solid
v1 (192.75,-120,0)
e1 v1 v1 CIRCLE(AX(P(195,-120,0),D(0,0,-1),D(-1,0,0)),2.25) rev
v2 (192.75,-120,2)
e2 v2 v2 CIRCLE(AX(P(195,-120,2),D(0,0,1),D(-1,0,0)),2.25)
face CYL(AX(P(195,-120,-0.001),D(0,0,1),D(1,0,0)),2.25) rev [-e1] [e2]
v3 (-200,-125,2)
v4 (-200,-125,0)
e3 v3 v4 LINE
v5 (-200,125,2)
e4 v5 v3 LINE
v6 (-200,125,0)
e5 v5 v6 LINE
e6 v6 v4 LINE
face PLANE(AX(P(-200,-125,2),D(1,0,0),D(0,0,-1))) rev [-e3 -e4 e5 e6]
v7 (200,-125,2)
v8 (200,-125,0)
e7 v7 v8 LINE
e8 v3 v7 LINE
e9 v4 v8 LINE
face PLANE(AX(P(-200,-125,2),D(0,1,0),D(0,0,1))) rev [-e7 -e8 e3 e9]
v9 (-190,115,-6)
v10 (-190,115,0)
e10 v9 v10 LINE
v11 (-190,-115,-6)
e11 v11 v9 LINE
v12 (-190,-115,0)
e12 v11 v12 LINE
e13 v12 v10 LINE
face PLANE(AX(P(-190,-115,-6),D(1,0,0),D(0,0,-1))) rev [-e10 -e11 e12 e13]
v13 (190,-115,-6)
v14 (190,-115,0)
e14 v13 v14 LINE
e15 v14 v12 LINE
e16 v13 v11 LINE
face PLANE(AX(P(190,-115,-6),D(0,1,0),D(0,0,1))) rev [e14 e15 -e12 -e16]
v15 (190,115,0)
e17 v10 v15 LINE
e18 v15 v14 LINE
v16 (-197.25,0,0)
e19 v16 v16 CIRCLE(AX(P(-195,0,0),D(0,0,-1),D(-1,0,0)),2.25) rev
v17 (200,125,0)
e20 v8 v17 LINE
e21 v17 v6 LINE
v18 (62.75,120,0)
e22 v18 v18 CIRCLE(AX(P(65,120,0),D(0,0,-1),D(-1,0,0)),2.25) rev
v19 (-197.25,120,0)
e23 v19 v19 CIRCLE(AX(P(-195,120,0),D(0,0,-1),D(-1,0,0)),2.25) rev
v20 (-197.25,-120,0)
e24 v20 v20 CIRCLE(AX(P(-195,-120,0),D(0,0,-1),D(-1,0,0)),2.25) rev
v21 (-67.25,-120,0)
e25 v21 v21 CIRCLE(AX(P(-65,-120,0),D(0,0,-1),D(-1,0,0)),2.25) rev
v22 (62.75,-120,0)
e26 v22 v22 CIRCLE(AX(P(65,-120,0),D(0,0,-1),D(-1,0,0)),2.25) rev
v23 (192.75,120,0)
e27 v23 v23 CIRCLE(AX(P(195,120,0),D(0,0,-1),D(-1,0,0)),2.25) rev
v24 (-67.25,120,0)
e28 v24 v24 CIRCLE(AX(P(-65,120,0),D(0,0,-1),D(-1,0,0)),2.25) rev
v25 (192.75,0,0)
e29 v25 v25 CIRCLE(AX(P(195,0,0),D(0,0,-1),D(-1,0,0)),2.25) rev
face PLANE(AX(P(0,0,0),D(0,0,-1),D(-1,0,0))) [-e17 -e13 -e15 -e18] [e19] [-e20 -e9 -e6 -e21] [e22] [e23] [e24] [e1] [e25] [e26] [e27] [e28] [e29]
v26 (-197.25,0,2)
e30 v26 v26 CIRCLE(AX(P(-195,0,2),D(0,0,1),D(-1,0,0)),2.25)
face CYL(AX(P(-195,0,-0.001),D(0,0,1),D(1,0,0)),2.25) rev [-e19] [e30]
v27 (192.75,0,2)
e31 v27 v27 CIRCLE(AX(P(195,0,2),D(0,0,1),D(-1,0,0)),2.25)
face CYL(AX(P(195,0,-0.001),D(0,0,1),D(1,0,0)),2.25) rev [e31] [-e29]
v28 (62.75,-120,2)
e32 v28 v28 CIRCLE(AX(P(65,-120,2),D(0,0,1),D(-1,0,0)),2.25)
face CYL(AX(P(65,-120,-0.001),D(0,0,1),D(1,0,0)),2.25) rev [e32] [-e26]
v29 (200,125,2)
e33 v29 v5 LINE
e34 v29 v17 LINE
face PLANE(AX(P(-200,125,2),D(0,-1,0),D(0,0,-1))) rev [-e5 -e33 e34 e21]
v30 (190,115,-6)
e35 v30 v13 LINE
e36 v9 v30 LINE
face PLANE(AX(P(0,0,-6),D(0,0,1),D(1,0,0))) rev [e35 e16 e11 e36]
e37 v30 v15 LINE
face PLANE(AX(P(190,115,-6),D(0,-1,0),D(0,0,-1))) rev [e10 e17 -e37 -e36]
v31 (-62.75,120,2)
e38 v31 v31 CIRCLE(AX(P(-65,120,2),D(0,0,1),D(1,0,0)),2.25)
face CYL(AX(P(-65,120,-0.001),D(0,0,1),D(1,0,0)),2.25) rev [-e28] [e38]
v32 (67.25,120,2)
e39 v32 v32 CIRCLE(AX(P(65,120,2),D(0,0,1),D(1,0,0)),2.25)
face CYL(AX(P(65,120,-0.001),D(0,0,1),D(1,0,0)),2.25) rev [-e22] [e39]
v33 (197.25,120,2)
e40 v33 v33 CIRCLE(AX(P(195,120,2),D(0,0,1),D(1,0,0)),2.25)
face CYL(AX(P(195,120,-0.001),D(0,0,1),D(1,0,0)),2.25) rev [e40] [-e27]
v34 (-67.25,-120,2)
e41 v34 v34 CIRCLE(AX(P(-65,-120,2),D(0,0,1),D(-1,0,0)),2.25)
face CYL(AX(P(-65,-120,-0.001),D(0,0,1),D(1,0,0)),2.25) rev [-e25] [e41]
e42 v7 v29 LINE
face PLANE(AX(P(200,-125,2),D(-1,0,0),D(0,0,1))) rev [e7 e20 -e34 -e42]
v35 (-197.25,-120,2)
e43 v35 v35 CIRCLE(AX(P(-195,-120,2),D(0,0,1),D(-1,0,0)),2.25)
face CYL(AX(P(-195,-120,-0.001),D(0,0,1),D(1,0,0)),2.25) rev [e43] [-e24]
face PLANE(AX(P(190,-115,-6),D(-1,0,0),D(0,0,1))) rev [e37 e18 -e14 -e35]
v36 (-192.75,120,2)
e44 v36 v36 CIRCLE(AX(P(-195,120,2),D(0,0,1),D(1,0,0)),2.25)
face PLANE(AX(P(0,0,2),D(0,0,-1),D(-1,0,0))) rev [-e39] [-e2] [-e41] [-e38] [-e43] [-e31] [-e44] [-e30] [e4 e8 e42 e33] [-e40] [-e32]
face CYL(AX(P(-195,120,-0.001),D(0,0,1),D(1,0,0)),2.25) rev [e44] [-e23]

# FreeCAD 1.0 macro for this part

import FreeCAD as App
import Part
import Sketcher

doc = App.newDocument("Part")
body = doc.addObject("PartDesign::Body", "Body")

sketch1 = body.newObject("Sketcher::SketchObject", "Sketch")
sketch1.AttachmentSupport = (doc.getObject("XY_Plane"), [""])
sketch1.MapMode = "FlatFace"
sketch1.addGeometry([
    Part.LineSegment(App.Vector(-200, 125, 0), App.Vector(-200, -125, 0)),
    Part.LineSegment(App.Vector(-200, -125, 0), App.Vector(200, -125, 0)),
    Part.LineSegment(App.Vector(200, -125, 0), App.Vector(200, 125, 0)),
    Part.LineSegment(App.Vector(200, 125, 0), App.Vector(-200, 125, 0)),
], False)
sketch1.addConstraint([
    Sketcher.Constraint("Coincident", 0, 2, 1, 1),
    Sketcher.Constraint("Coincident", 1, 2, 2, 1),
    Sketcher.Constraint("Coincident", 2, 2, 3, 1),
    Sketcher.Constraint("Coincident", 3, 2, 0, 1),
    Sketcher.Constraint("Vertical", 0),
    Sketcher.Constraint("Horizontal", 1),
    Sketcher.Constraint("Vertical", 2),
    Sketcher.Constraint("Horizontal", 3),
    Sketcher.Constraint("Symmetric", 0, 2, 2, 2, -1, 1),
    Sketcher.Constraint("DistanceX", 1, 1, 1, 2, 400.0),
    Sketcher.Constraint("DistanceY", 0, 2, 0, 1, 250.0),
])
pad1 = body.newObject("PartDesign::Pad", "Pad")
pad1.Profile = sketch1
pad1.Length = 2

sketch2 = body.newObject("Sketcher::SketchObject", "Sketch001")
sketch2.AttachmentSupport = (doc.getObject("XY_Plane"), [""])
sketch2.MapMode = "FlatFace"
sketch2.AttachmentOffset = App.Placement(App.Vector(0, 0, 2), App.Rotation())
sketch2.addGeometry(Part.Circle(App.Vector(-195, 120, 0), App.Vector(0, 0, 1), 2.2), False)
sketch2.addConstraint([
    Sketcher.Constraint("Diameter", 0, 4.5),
    Sketcher.Constraint("DistanceX", 0, 3, -1, 1, 195.0),
    Sketcher.Constraint("DistanceY", -1, 1, 0, 3, 120.0),
])
pocket1 = body.newObject("PartDesign::Pocket", "Pocket")
pocket1.Profile = sketch2
pocket1.Type = "UpToFirst"

sketch3 = body.newObject("Sketcher::SketchObject", "Sketch002")
sketch3.AttachmentSupport = (doc.getObject("XY_Plane"), [""])
sketch3.MapMode = "FlatFace"
sketch3.AttachmentOffset = App.Placement(App.Vector(0, 0, 2), App.Rotation())
sketch3.addGeometry(Part.Circle(App.Vector(-65, 120, 0), App.Vector(0, 0, 1), 2.2), False)
sketch3.addConstraint([
    Sketcher.Constraint("Diameter", 0, 4.5),
    Sketcher.Constraint("DistanceX", 0, 3, -1, 1, 65.0),
    Sketcher.Constraint("DistanceY", -1, 1, 0, 3, 120.0),
])
pocket2 = body.newObject("PartDesign::Pocket", "Pocket001")
pocket2.Profile = sketch3
pocket2.Type = "UpToFirst"

sketch4 = body.newObject("Sketcher::SketchObject", "Sketch003")
sketch4.AttachmentSupport = (doc.getObject("XY_Plane"), [""])
sketch4.MapMode = "FlatFace"
sketch4.AttachmentOffset = App.Placement(App.Vector(0, 0, 2), App.Rotation())
sketch4.addGeometry(Part.Circle(App.Vector(65, 120, 0), App.Vector(0, 0, 1), 2.2), False)
sketch4.addConstraint([
    Sketcher.Constraint("Diameter", 0, 4.5),
    Sketcher.Constraint("DistanceX", -1, 1, 0, 3, 65.0),
    Sketcher.Constraint("DistanceY", -1, 1, 0, 3, 120.0),
])
pocket3 = body.newObject("PartDesign::Pocket", "Pocket002")
pocket3.Profile = sketch4
pocket3.Type = "UpToFirst"

sketch5 = body.newObject("Sketcher::SketchObject", "Sketch004")
sketch5.AttachmentSupport = (doc.getObject("XY_Plane"), [""])
sketch5.MapMode = "FlatFace"
sketch5.AttachmentOffset = App.Placement(App.Vector(0, 0, 2), App.Rotation())
sketch5.addGeometry(Part.Circle(App.Vector(195, 120, 0), App.Vector(0, 0, 1), 2.2), False)
sketch5.addConstraint([
    Sketcher.Constraint("Diameter", 0, 4.5),
    Sketcher.Constraint("DistanceX", -1, 1, 0, 3, 195.0),
    Sketcher.Constraint("DistanceY", -1, 1, 0, 3, 120.0),
])
pocket4 = body.newObject("PartDesign::Pocket", "Pocket003")
pocket4.Profile = sketch5
pocket4.Type = "UpToFirst"

sketch6 = body.newObject("Sketcher::SketchObject", "Sketch005")
sketch6.AttachmentSupport = (doc.getObject("XY_Plane"), [""])
sketch6.MapMode = "FlatFace"
sketch6.AttachmentOffset = App.Placement(App.Vector(0, 0, 2), App.Rotation())
sketch6.addGeometry(Part.Circle(App.Vector(-65, -120, 0), App.Vector(0, 0, 1), 2.2), False)
sketch6.addConstraint([
    Sketcher.Constraint("Diameter", 0, 4.5),
    Sketcher.Constraint("DistanceX", 0, 3, -1, 1, 65.0),
    Sketcher.Constraint("DistanceY", 0, 3, -1, 1, 120.0),
])
pocket5 = body.newObject("PartDesign::Pocket", "Pocket004")
pocket5.Profile = sketch6
pocket5.Type = "UpToFirst"

sketch7 = body.newObject("Sketcher::SketchObject", "Sketch006")
sketch7.AttachmentSupport = (doc.getObject("XY_Plane"), [""])
sketch7.MapMode = "FlatFace"
sketch7.AttachmentOffset = App.Placement(App.Vector(0, 0, 2), App.Rotation())
sketch7.addGeometry(Part.Circle(App.Vector(65, -120, 0), App.Vector(0, 0, 1), 2.2), False)
sketch7.addConstraint([
    Sketcher.Constraint("Diameter", 0, 4.5),
    Sketcher.Constraint("DistanceX", -1, 1, 0, 3, 65.0),
    Sketcher.Constraint("DistanceY", 0, 3, -1, 1, 120.0),
])
pocket6 = body.newObject("PartDesign::Pocket", "Pocket005")
pocket6.Profile = sketch7
pocket6.Type = "UpToFirst"

sketch8 = body.newObject("Sketcher::SketchObject", "Sketch007")
sketch8.AttachmentSupport = (doc.getObject("XY_Plane"), [""])
sketch8.MapMode = "FlatFace"
sketch8.AttachmentOffset = App.Placement(App.Vector(0, 0, 2), App.Rotation())
sketch8.addGeometry(Part.Circle(App.Vector(195, -120, 0), App.Vector(0, 0, 1), 2.2), False)
sketch8.addConstraint([
    Sketcher.Constraint("Diameter", 0, 4.5),
    Sketcher.Constraint("DistanceX", -1, 1, 0, 3, 195.0),
    Sketcher.Constraint("DistanceY", 0, 3, -1, 1, 120.0),
])
pocket7 = body.newObject("PartDesign::Pocket", "Pocket006")
pocket7.Profile = sketch8
pocket7.Type = "UpToFirst"

sketch9 = body.newObject("Sketcher::SketchObject", "Sketch008")
sketch9.AttachmentSupport = (doc.getObject("XY_Plane"), [""])
sketch9.MapMode = "FlatFace"
sketch9.AttachmentOffset = App.Placement(App.Vector(0, 0, 2), App.Rotation())
sketch9.addGeometry(Part.Circle(App.Vector(-195, -120, 0), App.Vector(0, 0, 1), 2.2), False)
sketch9.addConstraint([
    Sketcher.Constraint("Diameter", 0, 4.5),
    Sketcher.Constraint("DistanceX", 0, 3, -1, 1, 195.0),
    Sketcher.Constraint("DistanceY", 0, 3, -1, 1, 120.0),
])
pocket8 = body.newObject("PartDesign::Pocket", "Pocket007")
pocket8.Profile = sketch9
pocket8.Type = "UpToFirst"

sketch10 = body.newObject("Sketcher::SketchObject", "Sketch009")
sketch10.AttachmentSupport = (doc.getObject("XY_Plane"), [""])
sketch10.MapMode = "FlatFace"
sketch10.AttachmentOffset = App.Placement(App.Vector(0, 0, 2), App.Rotation())
sketch10.addGeometry(Part.Circle(App.Vector(-195, 0, 0), App.Vector(0, 0, 1), 2.2), False)
sketch10.addConstraint([
    Sketcher.Constraint("PointOnObject", 0, 3, -1),
    Sketcher.Constraint("Diameter", 0, 4.5),
    Sketcher.Constraint("DistanceX", 0, 3, -1, 1, 195.0),
])
pocket9 = body.newObject("PartDesign::Pocket", "Pocket008")
pocket9.Profile = sketch10
pocket9.Type = "UpToFirst"

sketch11 = body.newObject("Sketcher::SketchObject", "Sketch010")
sketch11.AttachmentSupport = (doc.getObject("XY_Plane"), [""])
sketch11.MapMode = "FlatFace"
sketch11.AttachmentOffset = App.Placement(App.Vector(0, 0, 2), App.Rotation())
sketch11.addGeometry(Part.Circle(App.Vector(195, 0, 0), App.Vector(0, 0, 1), 2.2), False)
sketch11.addConstraint([
    Sketcher.Constraint("PointOnObject", 0, 3, -1),
    Sketcher.Constraint("Diameter", 0, 4.5),
    Sketcher.Constraint("DistanceX", -1, 1, 0, 3, 195.0),
])
pocket10 = body.newObject("PartDesign::Pocket", "Pocket009")
pocket10.Profile = sketch11
pocket10.Type = "UpToFirst"

sketch12 = body.newObject("Sketcher::SketchObject", "Sketch011")
sketch12.AttachmentSupport = (doc.getObject("XY_Plane"), [""])
sketch12.MapMode = "FlatFace"
sketch12.addGeometry([
    Part.LineSegment(App.Vector(190, 115, 0), App.Vector(190, -115, 0)),
    Part.LineSegment(App.Vector(190, -115, 0), App.Vector(-190, -115, 0)),
    Part.LineSegment(App.Vector(-190, -115, 0), App.Vector(-190, 115, 0)),
    Part.LineSegment(App.Vector(-190, 115, 0), App.Vector(190, 115, 0)),
], False)
sketch12.addConstraint([
    Sketcher.Constraint("Coincident", 0, 2, 1, 1),
    Sketcher.Constraint("Coincident", 1, 2, 2, 1),
    Sketcher.Constraint("Coincident", 2, 2, 3, 1),
    Sketcher.Constraint("Coincident", 3, 2, 0, 1),
    Sketcher.Constraint("Vertical", 0),
    Sketcher.Constraint("Horizontal", 1),
    Sketcher.Constraint("Vertical", 2),
    Sketcher.Constraint("Horizontal", 3),
    Sketcher.Constraint("Symmetric", 0, 2, 2, 2, -1, 1),
    Sketcher.Constraint("DistanceX", 1, 2, 1, 1, 380.0),
    Sketcher.Constraint("DistanceY", 0, 2, 0, 1, 230.0),
])
pad2 = body.newObject("PartDesign::Pad", "Pad001")
pad2.Profile = sketch12
pad2.Length = 6
pad2.Reversed = True

doc.recompute()
